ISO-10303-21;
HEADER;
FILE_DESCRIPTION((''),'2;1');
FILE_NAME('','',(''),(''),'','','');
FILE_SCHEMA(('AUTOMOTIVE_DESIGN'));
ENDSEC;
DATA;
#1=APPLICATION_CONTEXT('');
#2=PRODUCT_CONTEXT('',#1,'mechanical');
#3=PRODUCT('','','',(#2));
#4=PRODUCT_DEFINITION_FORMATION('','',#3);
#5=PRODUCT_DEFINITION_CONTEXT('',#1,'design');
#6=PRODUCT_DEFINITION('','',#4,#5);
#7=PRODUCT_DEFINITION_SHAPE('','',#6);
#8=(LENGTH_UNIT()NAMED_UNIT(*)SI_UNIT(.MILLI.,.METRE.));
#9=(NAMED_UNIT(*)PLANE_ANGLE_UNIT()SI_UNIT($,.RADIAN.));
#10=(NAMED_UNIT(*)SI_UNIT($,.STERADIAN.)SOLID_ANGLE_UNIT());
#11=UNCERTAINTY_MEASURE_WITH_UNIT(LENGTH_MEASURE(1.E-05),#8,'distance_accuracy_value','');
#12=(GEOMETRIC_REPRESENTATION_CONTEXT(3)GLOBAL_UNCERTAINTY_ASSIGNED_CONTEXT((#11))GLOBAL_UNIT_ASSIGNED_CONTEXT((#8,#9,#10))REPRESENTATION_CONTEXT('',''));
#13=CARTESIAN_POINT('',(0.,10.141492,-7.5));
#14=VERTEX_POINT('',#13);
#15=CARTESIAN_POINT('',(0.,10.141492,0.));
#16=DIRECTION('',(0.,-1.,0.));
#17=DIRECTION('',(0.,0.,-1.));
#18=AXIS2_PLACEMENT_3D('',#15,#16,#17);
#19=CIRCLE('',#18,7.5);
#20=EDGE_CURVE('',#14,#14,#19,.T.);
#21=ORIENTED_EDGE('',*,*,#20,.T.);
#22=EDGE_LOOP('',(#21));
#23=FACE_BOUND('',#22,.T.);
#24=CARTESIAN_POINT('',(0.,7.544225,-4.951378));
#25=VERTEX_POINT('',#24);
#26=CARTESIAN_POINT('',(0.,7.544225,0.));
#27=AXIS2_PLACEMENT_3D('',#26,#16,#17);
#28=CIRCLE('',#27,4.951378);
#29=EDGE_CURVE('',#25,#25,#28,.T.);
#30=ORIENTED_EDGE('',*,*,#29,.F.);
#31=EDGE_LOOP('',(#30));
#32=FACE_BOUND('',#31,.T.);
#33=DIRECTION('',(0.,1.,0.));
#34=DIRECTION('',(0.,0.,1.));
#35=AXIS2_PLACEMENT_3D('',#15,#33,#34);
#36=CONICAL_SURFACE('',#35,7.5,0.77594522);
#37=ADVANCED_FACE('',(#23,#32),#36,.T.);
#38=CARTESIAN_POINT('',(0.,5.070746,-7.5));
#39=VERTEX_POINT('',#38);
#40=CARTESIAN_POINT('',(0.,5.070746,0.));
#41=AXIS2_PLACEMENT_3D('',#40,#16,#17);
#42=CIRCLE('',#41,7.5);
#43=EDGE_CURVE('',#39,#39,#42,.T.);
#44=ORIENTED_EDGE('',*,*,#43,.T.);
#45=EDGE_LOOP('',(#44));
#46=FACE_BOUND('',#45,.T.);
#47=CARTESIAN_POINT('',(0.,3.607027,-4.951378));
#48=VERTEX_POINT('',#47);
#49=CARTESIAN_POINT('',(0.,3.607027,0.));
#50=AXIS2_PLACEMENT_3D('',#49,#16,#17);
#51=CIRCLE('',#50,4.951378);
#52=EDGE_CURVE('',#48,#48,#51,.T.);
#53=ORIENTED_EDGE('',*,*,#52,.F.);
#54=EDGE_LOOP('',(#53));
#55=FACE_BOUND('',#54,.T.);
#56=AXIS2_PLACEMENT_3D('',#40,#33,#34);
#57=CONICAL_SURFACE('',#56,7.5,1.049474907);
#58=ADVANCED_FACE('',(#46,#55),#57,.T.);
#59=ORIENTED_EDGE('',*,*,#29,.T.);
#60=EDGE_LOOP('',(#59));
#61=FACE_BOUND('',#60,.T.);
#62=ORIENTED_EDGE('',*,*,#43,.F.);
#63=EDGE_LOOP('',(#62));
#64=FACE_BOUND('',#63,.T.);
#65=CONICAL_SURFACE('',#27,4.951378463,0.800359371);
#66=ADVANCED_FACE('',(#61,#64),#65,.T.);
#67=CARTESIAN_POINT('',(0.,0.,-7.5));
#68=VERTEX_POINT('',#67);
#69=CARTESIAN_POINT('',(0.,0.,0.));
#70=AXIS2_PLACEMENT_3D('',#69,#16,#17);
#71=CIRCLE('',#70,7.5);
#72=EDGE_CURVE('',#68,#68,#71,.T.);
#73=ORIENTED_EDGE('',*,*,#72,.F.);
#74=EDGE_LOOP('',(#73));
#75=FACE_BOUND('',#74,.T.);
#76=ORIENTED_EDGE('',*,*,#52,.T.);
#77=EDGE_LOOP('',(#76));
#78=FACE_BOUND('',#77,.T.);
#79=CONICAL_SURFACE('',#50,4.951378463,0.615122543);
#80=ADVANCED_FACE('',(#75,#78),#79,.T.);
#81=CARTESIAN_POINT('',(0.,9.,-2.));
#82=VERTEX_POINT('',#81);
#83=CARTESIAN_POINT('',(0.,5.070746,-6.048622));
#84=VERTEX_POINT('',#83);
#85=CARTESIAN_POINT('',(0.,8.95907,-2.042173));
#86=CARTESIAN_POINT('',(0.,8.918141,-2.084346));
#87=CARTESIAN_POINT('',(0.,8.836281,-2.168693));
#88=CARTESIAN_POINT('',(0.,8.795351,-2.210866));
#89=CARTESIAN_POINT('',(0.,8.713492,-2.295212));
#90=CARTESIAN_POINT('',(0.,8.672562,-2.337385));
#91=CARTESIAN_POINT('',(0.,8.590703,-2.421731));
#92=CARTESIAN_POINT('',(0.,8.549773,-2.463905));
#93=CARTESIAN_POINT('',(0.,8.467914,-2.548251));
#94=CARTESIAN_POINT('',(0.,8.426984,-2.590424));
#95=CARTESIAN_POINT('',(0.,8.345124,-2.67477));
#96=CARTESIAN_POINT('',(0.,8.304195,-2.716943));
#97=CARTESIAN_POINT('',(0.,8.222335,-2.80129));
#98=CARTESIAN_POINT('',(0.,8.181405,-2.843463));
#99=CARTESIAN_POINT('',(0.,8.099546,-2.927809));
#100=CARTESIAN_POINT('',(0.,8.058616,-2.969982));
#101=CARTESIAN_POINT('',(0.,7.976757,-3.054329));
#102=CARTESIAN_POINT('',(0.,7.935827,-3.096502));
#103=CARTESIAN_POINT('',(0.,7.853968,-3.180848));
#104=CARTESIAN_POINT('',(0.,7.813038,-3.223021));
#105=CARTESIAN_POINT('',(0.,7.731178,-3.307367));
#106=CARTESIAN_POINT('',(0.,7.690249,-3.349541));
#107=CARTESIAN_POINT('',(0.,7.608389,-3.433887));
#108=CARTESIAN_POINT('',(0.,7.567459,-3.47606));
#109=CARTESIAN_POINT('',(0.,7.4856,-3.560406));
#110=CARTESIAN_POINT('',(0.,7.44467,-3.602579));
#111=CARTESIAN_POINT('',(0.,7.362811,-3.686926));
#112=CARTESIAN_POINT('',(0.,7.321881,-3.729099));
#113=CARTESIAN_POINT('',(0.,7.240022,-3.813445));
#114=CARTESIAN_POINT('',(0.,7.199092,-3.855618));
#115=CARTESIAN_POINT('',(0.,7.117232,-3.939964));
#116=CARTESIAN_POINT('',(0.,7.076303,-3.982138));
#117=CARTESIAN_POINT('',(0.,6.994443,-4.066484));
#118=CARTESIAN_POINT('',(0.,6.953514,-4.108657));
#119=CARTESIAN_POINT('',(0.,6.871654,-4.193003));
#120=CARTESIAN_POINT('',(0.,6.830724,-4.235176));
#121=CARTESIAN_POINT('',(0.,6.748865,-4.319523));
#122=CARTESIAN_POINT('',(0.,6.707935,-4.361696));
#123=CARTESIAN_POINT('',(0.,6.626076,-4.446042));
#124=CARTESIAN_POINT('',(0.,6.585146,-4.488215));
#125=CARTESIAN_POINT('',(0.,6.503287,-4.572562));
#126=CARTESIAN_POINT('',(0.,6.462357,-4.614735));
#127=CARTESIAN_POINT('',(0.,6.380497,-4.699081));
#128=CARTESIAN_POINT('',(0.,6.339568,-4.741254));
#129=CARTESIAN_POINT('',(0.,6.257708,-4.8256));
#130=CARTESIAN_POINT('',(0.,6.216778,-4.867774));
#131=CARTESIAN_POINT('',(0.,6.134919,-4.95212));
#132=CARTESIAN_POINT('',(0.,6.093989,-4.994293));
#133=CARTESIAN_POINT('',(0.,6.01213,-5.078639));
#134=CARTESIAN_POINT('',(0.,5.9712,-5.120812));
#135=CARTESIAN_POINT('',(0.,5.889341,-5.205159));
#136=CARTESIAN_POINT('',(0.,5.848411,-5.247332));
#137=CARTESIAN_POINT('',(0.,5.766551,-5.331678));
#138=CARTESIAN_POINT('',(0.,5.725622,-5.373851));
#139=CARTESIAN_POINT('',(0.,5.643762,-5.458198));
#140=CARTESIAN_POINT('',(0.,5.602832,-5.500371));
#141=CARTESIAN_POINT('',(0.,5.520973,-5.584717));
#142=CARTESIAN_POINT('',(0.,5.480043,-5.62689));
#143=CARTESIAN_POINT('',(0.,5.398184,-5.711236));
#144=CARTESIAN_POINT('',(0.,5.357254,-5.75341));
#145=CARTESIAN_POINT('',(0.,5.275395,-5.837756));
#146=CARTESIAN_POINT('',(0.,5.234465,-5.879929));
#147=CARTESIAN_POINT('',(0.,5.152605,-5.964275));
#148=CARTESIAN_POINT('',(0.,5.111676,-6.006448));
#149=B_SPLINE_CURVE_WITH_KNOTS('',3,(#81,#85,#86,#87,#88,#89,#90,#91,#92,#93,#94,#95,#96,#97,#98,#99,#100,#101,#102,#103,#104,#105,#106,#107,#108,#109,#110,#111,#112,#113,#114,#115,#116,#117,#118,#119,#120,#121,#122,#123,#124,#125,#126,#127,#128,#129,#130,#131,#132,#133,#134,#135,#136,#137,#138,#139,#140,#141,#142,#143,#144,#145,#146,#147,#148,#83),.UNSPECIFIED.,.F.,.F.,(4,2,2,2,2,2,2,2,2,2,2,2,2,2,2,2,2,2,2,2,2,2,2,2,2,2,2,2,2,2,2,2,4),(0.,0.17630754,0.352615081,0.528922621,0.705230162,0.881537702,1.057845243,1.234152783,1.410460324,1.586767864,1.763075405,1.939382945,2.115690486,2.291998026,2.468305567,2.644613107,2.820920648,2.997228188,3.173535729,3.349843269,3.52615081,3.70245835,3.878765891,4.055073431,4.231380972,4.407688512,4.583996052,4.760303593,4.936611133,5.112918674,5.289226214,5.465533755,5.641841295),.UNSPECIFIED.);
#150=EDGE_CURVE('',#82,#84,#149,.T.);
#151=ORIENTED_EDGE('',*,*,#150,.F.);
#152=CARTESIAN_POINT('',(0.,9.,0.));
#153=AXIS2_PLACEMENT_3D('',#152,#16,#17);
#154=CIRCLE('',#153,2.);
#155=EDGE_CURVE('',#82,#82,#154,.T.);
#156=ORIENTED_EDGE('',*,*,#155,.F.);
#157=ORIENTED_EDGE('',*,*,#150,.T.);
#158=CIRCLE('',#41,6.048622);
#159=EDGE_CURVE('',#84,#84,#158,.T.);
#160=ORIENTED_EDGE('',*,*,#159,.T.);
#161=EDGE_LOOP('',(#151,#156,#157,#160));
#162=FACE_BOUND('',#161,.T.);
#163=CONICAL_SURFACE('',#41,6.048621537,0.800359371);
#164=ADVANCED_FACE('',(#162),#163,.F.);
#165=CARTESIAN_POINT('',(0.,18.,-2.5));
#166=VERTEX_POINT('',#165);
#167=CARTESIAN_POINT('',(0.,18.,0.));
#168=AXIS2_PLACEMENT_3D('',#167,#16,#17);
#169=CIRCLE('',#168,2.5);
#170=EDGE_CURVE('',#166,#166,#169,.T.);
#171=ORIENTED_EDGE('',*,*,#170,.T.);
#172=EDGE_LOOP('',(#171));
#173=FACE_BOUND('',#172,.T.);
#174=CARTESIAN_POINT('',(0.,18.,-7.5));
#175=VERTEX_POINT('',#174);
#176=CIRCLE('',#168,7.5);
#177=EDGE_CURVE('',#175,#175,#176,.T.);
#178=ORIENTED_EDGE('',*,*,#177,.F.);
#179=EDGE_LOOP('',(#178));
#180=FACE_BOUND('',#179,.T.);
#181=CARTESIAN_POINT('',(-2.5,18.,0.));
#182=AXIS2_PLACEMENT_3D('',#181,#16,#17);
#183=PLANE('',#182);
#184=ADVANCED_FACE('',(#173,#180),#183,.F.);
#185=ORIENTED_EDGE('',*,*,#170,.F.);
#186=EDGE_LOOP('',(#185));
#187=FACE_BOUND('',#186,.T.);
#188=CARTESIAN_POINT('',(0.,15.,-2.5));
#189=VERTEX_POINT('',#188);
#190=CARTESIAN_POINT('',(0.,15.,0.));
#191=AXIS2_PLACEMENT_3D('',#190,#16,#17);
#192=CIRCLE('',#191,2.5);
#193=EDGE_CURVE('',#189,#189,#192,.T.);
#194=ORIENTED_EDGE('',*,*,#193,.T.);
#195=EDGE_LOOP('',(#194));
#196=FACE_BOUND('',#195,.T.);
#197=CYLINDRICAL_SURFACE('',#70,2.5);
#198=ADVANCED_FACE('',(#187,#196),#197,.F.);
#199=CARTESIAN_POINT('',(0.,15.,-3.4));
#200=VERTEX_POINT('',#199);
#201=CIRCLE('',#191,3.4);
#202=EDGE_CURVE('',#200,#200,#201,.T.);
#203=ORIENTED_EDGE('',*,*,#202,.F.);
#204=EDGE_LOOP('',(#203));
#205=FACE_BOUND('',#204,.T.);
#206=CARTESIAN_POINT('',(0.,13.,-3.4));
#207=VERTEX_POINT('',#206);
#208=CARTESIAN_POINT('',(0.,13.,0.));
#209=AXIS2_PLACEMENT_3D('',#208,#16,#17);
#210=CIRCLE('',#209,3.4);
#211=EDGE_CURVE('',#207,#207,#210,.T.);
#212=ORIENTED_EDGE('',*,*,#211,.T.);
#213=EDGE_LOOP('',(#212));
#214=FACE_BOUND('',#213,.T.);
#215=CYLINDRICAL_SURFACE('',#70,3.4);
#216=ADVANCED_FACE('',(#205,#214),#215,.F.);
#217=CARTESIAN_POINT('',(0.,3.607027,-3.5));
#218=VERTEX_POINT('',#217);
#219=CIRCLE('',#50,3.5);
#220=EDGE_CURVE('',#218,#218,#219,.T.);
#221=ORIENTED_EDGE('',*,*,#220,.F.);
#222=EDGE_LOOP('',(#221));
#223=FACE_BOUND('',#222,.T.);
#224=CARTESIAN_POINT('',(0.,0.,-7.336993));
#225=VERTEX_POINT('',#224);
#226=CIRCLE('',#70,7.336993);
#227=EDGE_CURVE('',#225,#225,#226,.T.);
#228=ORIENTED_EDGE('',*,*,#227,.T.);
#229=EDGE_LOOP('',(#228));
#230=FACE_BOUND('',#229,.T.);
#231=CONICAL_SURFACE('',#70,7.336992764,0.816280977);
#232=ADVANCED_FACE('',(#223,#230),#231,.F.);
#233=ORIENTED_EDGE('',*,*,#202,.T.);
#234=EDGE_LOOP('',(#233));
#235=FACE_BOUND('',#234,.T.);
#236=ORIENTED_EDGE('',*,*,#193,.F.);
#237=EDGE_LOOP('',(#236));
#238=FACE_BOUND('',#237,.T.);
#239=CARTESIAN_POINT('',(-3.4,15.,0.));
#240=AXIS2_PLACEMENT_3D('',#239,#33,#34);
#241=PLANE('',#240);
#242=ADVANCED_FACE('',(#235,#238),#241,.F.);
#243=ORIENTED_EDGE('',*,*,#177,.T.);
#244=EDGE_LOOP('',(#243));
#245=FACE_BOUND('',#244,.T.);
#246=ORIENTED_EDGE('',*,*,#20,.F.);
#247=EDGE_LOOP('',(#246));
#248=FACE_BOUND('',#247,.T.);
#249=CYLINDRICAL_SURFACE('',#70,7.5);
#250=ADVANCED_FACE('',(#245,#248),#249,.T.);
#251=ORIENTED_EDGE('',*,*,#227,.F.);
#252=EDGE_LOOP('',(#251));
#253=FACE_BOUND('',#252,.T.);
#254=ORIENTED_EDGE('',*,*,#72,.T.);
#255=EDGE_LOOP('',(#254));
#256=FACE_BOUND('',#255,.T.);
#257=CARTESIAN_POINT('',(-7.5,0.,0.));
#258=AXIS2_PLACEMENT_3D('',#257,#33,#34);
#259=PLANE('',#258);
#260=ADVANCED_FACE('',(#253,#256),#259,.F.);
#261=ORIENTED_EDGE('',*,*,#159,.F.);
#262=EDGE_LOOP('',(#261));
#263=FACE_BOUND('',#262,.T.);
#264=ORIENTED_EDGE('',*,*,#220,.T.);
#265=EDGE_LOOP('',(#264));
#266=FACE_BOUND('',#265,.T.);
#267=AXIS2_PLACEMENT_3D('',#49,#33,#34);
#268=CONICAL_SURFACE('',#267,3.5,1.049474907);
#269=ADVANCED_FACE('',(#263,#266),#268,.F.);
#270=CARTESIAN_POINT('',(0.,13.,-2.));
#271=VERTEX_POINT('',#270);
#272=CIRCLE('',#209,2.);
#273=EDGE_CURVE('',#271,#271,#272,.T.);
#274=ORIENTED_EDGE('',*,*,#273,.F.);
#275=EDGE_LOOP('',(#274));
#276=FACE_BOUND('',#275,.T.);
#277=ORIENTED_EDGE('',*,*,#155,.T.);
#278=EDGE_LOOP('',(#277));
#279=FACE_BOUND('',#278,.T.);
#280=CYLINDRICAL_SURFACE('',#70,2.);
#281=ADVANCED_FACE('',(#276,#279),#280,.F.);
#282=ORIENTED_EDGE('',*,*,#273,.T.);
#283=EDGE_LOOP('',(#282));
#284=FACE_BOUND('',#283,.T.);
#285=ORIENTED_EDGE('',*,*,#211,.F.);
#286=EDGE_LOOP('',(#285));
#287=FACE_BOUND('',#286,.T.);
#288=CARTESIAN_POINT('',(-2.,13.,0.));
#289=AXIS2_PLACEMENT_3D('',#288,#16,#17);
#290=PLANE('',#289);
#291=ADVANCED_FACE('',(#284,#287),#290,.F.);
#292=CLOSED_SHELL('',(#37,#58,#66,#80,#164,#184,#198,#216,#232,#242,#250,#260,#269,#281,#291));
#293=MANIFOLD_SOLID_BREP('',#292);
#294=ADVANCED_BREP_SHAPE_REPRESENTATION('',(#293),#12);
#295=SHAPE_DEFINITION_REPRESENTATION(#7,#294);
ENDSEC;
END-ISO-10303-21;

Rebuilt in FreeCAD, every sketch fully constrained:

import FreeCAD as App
import Part
import Sketcher
from FreeCAD import Vector
Q = App.Units.Quantity


def add_polygon(sketch, points):
    """Adds a closed chain of lines whose ends are joined by coincident constraints."""
    first, n = sketch.GeometryCount, len(points)
    for a, b in zip(points, points[1:] + points[:1]):
        sketch.addGeometry(Part.LineSegment(App.Vector(*a, 0), App.Vector(*b, 0)), False)
    for i in range(n):
        sketch.addConstraint(Sketcher.Constraint("Coincident", first + i, 2, first + (i + 1) % n, 1))

doc = App.newDocument("Part")
body = doc.addObject("PartDesign::Body", "Body")

sketch1 = body.newObject("Sketcher::SketchObject", "Sketch")
sketch1.AttachmentSupport = (doc.getObject("XY_Plane"), [""])
sketch1.MapMode = "FlatFace"
add_polygon(sketch1, [(-2.5, 18), (-7.5, 18), (-7.5, 10.141492), (-4.951378, 7.544225), (-7.5, 5.070746), (-4.951378, 3.607027), (-7.5, 0), (-7.336993, 0), (-3.5, 3.607027), (-6.048622, 5.070746), (-2, 9), (-2, 13), (-3.4, 13), (-3.4, 15), (-2.5, 15)])
sketch1.addConstraint([
    Sketcher.Constraint("Horizontal", 0),
    Sketcher.Constraint("Vertical", 1),
    Sketcher.Constraint("Horizontal", 6),
    Sketcher.Constraint("Vertical", 10),
    Sketcher.Constraint("Horizontal", 11),
    Sketcher.Constraint("Vertical", 12),
    Sketcher.Constraint("Horizontal", 13),
    Sketcher.Constraint("Vertical", 14),
    Sketcher.Constraint("PointOnObject", 5, 2, -1),
    Sketcher.Constraint("Parallel", 4, 8),
    Sketcher.Constraint("Parallel", 3, 9),
    Sketcher.Constraint("Horizontal", 4, 2, 7, 2),
    Sketcher.Constraint("Horizontal", 3, 2, 8, 2),
    Sketcher.Constraint("Vertical", 1, 2, 3, 2),
    Sketcher.Constraint("Vertical", 2, 2, 4, 2),
    Sketcher.Constraint("Vertical", 3, 2, 5, 2),
    Sketcher.Constraint("DistanceX", 0, 2, 0, 1, Q("5 mm")),
    Sketcher.Constraint("DistanceY", 10, 1, 10, 2, Q("4 mm")),
    Sketcher.Constraint("DistanceY", 12, 1, 12, 2, Q("2 mm")),
    Sketcher.Constraint("DistanceY", 14, 1, 14, 2, Q("3 mm")),
    Sketcher.Constraint("DistanceX", 11, 2, 11, 1, Q("1.4 mm")),
    Sketcher.Constraint("DistanceX", 13, 1, 13, 2, Q("0.9 mm")),
    Sketcher.Constraint("DistanceY", -1, 1, 0, 2, Q("18 mm")),
    Sketcher.Constraint("DistanceX", 9, 2, -1, 1, Q("2 mm")),
    Sketcher.Constraint("DistanceX", 3, 2, 7, 2, Q("4 mm")),
    Sketcher.Constraint("Distance", 3, Q("3.551559 mm")),
    Sketcher.Constraint("Distance", 7, Q("5.266228 mm")),
    Sketcher.Constraint("Distance", 9, Q("5.641841 mm")),
    Sketcher.Constraint("DistanceX", 6, 1, 6, 2, Q("0.163007 mm")),
    Sketcher.Constraint("DistanceY", 1, 2, 1, 1, Q("7.858508 mm")),
])
revolution = body.newObject("PartDesign::Revolution", "Revolution")
revolution.Profile = sketch1
revolution.ReferenceAxis = (sketch1, ["V_Axis"])
revolution.Angle = 360

doc.recompute()
